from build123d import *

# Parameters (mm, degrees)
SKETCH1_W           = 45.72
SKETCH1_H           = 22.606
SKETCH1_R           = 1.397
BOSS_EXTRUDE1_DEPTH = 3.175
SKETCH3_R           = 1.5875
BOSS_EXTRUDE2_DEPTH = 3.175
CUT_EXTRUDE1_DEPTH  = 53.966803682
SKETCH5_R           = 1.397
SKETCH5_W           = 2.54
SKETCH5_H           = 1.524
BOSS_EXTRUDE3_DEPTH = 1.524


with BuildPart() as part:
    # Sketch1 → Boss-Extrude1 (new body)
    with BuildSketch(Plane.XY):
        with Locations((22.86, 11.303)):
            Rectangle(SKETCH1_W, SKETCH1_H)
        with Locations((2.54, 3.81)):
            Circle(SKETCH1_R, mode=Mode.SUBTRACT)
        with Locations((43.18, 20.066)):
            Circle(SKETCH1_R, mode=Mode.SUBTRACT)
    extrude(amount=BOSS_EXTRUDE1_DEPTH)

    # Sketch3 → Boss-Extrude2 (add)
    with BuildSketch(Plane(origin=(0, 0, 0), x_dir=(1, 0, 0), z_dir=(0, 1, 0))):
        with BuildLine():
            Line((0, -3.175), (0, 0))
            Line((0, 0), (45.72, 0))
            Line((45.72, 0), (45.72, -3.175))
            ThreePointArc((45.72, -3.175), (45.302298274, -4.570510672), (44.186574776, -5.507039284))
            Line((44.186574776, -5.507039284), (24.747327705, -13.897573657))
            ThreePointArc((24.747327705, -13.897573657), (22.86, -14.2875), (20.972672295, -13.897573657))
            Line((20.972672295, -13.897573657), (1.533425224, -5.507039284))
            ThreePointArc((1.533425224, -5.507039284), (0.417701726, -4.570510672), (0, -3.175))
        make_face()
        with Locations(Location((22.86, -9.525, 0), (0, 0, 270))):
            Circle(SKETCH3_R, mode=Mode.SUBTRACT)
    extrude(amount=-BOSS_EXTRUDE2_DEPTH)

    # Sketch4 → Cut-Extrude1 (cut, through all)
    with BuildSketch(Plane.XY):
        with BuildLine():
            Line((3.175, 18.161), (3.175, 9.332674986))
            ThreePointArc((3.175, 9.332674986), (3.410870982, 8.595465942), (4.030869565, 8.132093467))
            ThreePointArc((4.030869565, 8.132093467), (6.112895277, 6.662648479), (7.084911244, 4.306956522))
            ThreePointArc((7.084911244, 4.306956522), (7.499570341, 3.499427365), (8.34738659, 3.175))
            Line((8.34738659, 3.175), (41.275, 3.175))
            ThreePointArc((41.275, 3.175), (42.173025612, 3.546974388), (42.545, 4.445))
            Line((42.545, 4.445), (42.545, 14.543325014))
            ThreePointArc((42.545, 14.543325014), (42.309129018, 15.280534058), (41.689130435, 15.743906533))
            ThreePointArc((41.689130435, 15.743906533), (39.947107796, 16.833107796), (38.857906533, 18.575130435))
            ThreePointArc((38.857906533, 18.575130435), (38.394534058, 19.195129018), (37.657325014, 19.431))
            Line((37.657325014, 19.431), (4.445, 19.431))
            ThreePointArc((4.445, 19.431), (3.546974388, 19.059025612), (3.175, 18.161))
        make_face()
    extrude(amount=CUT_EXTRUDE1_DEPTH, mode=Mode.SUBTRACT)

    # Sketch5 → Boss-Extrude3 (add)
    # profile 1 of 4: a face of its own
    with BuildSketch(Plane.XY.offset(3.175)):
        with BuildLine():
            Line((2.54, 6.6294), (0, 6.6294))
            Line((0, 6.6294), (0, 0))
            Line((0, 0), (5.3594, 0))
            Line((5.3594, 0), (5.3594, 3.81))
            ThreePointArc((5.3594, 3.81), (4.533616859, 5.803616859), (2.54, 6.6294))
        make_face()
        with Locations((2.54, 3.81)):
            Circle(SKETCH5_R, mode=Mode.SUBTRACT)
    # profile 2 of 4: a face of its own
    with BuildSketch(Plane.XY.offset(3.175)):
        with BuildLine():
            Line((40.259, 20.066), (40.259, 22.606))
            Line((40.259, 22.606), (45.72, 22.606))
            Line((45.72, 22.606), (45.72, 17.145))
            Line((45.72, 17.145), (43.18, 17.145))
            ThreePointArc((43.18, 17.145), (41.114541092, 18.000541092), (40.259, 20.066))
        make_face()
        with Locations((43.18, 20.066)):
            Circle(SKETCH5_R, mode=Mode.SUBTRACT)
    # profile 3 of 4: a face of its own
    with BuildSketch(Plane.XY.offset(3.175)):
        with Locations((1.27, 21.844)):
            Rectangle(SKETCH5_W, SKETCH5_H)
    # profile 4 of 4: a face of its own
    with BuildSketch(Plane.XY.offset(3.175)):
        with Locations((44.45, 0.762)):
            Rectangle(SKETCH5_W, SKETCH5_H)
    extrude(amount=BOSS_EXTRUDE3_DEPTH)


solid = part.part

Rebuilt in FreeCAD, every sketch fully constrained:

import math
import FreeCAD as App
import Part
import Sketcher

V = App.Vector
Q = App.Units.Quantity


def add_polygon(sketch, points):
    """Adds a closed chain of lines whose ends are joined by coincident constraints."""
    first, n = sketch.GeometryCount, len(points)
    for a, b in zip(points, points[1:] + points[:1]):
        sketch.addGeometry(Part.LineSegment(App.Vector(*a, 0), App.Vector(*b, 0)), False)
    for i in range(n):
        sketch.addConstraint(Sketcher.Constraint("Coincident", first + i, 2, first + (i + 1) % n, 1))

doc = App.newDocument("Part")
body = doc.addObject("PartDesign::Body", "Body")

sketch1 = body.newObject("Sketcher::SketchObject", "Sketch")
sketch1.AttachmentSupport = (doc.getObject("XY_Plane"), [""])
sketch1.MapMode = "FlatFace"
add_polygon(sketch1, [(0, 22.6), (0, 0), (45.7, 0), (45.7, 22.6)])
sketch1.addGeometry(Part.Circle(V(2.5, 3.8, 0), V(0, 0, 1), 1.4), False)
sketch1.addGeometry(Part.Circle(V(43.2, 20.1, 0), V(0, 0, 1), 1.4), False)
sketch1.addConstraint(Sketcher.Constraint("Vertical", 0))
sketch1.addConstraint(Sketcher.Constraint("Horizontal", 1))
sketch1.addConstraint(Sketcher.Constraint("Vertical", 2))
sketch1.addConstraint(Sketcher.Constraint("Horizontal", 3))
sketch1.addConstraint(Sketcher.Constraint("Coincident", 0, 2, -1, 1))
sketch1.addConstraint(Sketcher.Constraint("Equal", 4, 5))
sketch1.addConstraint(Sketcher.Constraint("Diameter", 4, Q("0.11 in")))
sketch1.addConstraint(Sketcher.Constraint("DistanceX", 1, 1, 1, 2, Q("1.8 in")))
sketch1.addConstraint(Sketcher.Constraint("DistanceY", 0, 2, 0, 1, Q("0.89 in")))
sketch1.addConstraint(Sketcher.Constraint("DistanceX", -1, 1, 4, 3, Q("0.1 in")))
sketch1.addConstraint(Sketcher.Constraint("DistanceX", -1, 1, 5, 3, Q("1.7 in")))
sketch1.addConstraint(Sketcher.Constraint("DistanceY", 5, 3, 2, 2, Q("0.1 in")))
sketch1.addConstraint(Sketcher.Constraint("DistanceY", -1, 1, 4, 3, Q("0.15 in")))
pad1 = body.newObject("PartDesign::Pad", "Pad")
pad1.Profile = sketch1
pad1.Length = Q("0.125 in")

sketch2 = body.newObject("Sketcher::SketchObject", "Sketch001")
sketch2.AttachmentSupport = (doc.getObject("XZ_Plane"), [""])
sketch2.MapMode = "FlatFace"
sketch2.addGeometry(Part.LineSegment(V(0, 0, 0), V(0, 3.2, 0)), False)
sketch2.addGeometry(Part.ArcOfCircle(Part.Circle(V(2.5, 3.2, 0), V(0, 0, 1), 2.5), math.radians(113), math.radians(180)), False)
sketch2.addGeometry(Part.LineSegment(V(1.5, 5.5, 0), V(21, 13.9, 0)), False)
sketch2.addGeometry(Part.ArcOfCircle(Part.Circle(V(22.9, 9.5, 0), V(0, 0, 1), 4.8), math.radians(67), math.radians(113)), False)
sketch2.addGeometry(Part.LineSegment(V(24.7, 13.9, 0), V(44.2, 5.5, 0)), False)
sketch2.addGeometry(Part.ArcOfCircle(Part.Circle(V(43.2, 3.2, 0), V(0, 0, 1), 2.5), math.radians(0), math.radians(67)), False)
sketch2.addGeometry(Part.LineSegment(V(45.7, 3.2, 0), V(45.7, 0, 0)), False)
sketch2.addGeometry(Part.LineSegment(V(45.7, 0, 0), V(0, 0, 0)), False)
sketch2.addGeometry(Part.Circle(V(22.9, 9.5, 0), V(0, 0, 1), 1.6), False)
sketch2.addConstraint(Sketcher.Constraint("Tangent", 0, 2, 1, 2))
sketch2.addConstraint(Sketcher.Constraint("Tangent", 1, 1, 2, 1))
sketch2.addConstraint(Sketcher.Constraint("Tangent", 2, 2, 3, 2))
sketch2.addConstraint(Sketcher.Constraint("Tangent", 3, 1, 4, 1))
sketch2.addConstraint(Sketcher.Constraint("Tangent", 4, 2, 5, 2))
sketch2.addConstraint(Sketcher.Constraint("Tangent", 5, 1, 6, 1))
sketch2.addConstraint(Sketcher.Constraint("Coincident", 6, 2, 7, 1))
sketch2.addConstraint(Sketcher.Constraint("Coincident", 7, 2, 0, 1))
sketch2.addConstraint(Sketcher.Constraint("Vertical", 0))
sketch2.addConstraint(Sketcher.Constraint("Vertical", 6))
sketch2.addConstraint(Sketcher.Constraint("Horizontal", 7))
sketch2.addConstraint(Sketcher.Constraint("Coincident", 7, 2, -1, 1))
sketch2.addConstraint(Sketcher.Constraint("Coincident", 8, 3, 3, 3))
sketch2.addConstraint(Sketcher.Constraint("Equal", 1, 5))
sketch2.addConstraint(Sketcher.Constraint("Horizontal", 1, 3, 5, 3))
sketch2.addConstraint(Sketcher.Constraint("Horizontal", 2, 2, 3, 1))
sketch2.addConstraint(Sketcher.Constraint("Radius", 1, Q("0.1 in")))
sketch2.addConstraint(Sketcher.Constraint("Diameter", 8, Q("0.125 in")))
sketch2.addConstraint(Sketcher.Constraint("DistanceX", 7, 2, 7, 1, Q("1.8 in")))
sketch2.addConstraint(Sketcher.Constraint("Radius", 3, Q("0.1875 in")))
sketch2.addConstraint(Sketcher.Constraint("DistanceY", 0, 1, 0, 2, Q("0.125 in")))
sketch2.addConstraint(Sketcher.Constraint("DistanceY", 1, 3, 3, 3, Q("0.25 in")))
pad2 = body.newObject("PartDesign::Pad", "Pad001")
pad2.Profile = sketch2
pad2.Length = Q("0.125 in")

sketch3 = body.newObject("Sketcher::SketchObject", "Sketch002")
sketch3.AttachmentSupport = (doc.getObject("XY_Plane"), [""])
sketch3.MapMode = "FlatFace"
sketch3.addGeometry(Part.LineSegment(V(3.2, 18.2, 0), V(3.2, 9.3, 0)), False)
sketch3.addGeometry(Part.ArcOfCircle(Part.Circle(V(4.4, 9.3, 0), V(0, 0, 1), 1.3), math.radians(180), math.radians(251)), False)
sketch3.addGeometry(Part.ArcOfCircle(Part.Circle(V(2.5, 3.8, 0), V(0, 0, 1), 4.6), math.radians(6), math.radians(71)), False)
sketch3.addGeometry(Part.ArcOfCircle(Part.Circle(V(8.3, 4.4, 0), V(0, 0, 1), 1.3), math.radians(-174), math.radians(-90)), False)
sketch3.addGeometry(Part.LineSegment(V(8.3, 3.2, 0), V(41.3, 3.2, 0)), False)
sketch3.addGeometry(Part.ArcOfCircle(Part.Circle(V(41.3, 4.4, 0), V(0, 0, 1), 1.3), math.radians(-90), math.radians(0)), False)
sketch3.addGeometry(Part.LineSegment(V(42.5, 4.4, 0), V(42.5, 14.5, 0)), False)
sketch3.addGeometry(Part.ArcOfCircle(Part.Circle(V(41.3, 14.5, 0), V(0, 0, 1), 1.3), math.radians(0), math.radians(71)), False)
sketch3.addGeometry(Part.ArcOfCircle(Part.Circle(V(43.2, 20.1, 0), V(0, 0, 1), 4.6), math.radians(-161), math.radians(-109)), False)
sketch3.addGeometry(Part.ArcOfCircle(Part.Circle(V(37.7, 18.2, 0), V(0, 0, 1), 1.3), math.radians(19), math.radians(90)), False)
sketch3.addGeometry(Part.LineSegment(V(37.7, 19.4, 0), V(4.4, 19.4, 0)), False)
sketch3.addGeometry(Part.ArcOfCircle(Part.Circle(V(4.4, 18.2, 0), V(0, 0, 1), 1.3), math.radians(90), math.radians(180)), False)
sketch3.addConstraint(Sketcher.Constraint("Tangent", 0, 2, 1, 1))
sketch3.addConstraint(Sketcher.Constraint("Tangent", 1, 2, 2, 2))
sketch3.addConstraint(Sketcher.Constraint("Tangent", 2, 1, 3, 1))
sketch3.addConstraint(Sketcher.Constraint("Tangent", 3, 2, 4, 1))
sketch3.addConstraint(Sketcher.Constraint("Tangent", 4, 2, 5, 1))
sketch3.addConstraint(Sketcher.Constraint("Tangent", 5, 2, 6, 1))
sketch3.addConstraint(Sketcher.Constraint("Tangent", 6, 2, 7, 1))
sketch3.addConstraint(Sketcher.Constraint("Tangent", 7, 2, 8, 2))
sketch3.addConstraint(Sketcher.Constraint("Tangent", 8, 1, 9, 1))
sketch3.addConstraint(Sketcher.Constraint("Tangent", 9, 2, 10, 1))
sketch3.addConstraint(Sketcher.Constraint("Tangent", 10, 2, 11, 1))
sketch3.addConstraint(Sketcher.Constraint("Tangent", 11, 2, 0, 1))
sketch3.addConstraint(Sketcher.Constraint("Vertical", 0))
sketch3.addConstraint(Sketcher.Constraint("Horizontal", 4))
sketch3.addConstraint(Sketcher.Constraint("Vertical", 6))
sketch3.addConstraint(Sketcher.Constraint("Horizontal", 10))
sketch3.addConstraint(Sketcher.Constraint("Equal", 1, 3))
sketch3.addConstraint(Sketcher.Constraint("Equal", 3, 5))
sketch3.addConstraint(Sketcher.Constraint("Equal", 5, 7))
sketch3.addConstraint(Sketcher.Constraint("Equal", 2, 8))
sketch3.addConstraint(Sketcher.Constraint("Equal", 7, 9))
sketch3.addConstraint(Sketcher.Constraint("Equal", 9, 11))
sketch3.addConstraint(Sketcher.Constraint("Radius", 1, Q("0.05 in")))
sketch3.addConstraint(Sketcher.Constraint("Radius", 2, Q("0.18 in")))
sketch3.addConstraint(Sketcher.Constraint("DistanceX", -1, 1, 2, 3, Q("0.1 in")))
sketch3.addConstraint(Sketcher.Constraint("DistanceX", -1, 1, 8, 3, Q("1.7 in")))
sketch3.addConstraint(Sketcher.Constraint("DistanceY", -1, 1, 2, 3, Q("0.15 in")))
sketch3.addConstraint(Sketcher.Constraint("DistanceY", -1, 1, 8, 3, Q("0.79 in")))
sketch3.addConstraint(Sketcher.Constraint("DistanceX", 1, 3, 5, 3, Q("1.45 in")))
sketch3.addConstraint(Sketcher.Constraint("DistanceY", 5, 3, 9, 3, Q("0.54 in")))
sketch3.addConstraint(Sketcher.Constraint("DistanceX", -1, 1, 1, 3, Q("0.175 in")))
sketch3.addConstraint(Sketcher.Constraint("DistanceY", -1, 1, 3, 3, Q("0.175 in")))
pocket1 = body.newObject("PartDesign::Pocket", "Pocket")
pocket1.Profile = sketch3
pocket1.Type = "ThroughAll"
pocket1.Reversed = True

sketch4 = body.newObject("Sketcher::SketchObject", "Sketch003")
sketch4.AttachmentSupport = (doc.getObject("XY_Plane"), [""])
sketch4.MapMode = "FlatFace"
sketch4.AttachmentOffset = App.Placement(V(0, 0, 0.125 * 25.4), App.Rotation())
sketch4.addGeometry(Part.LineSegment(V(2.5, 6.6, 0), V(0, 6.6, 0)), False)
sketch4.addGeometry(Part.LineSegment(V(0, 6.6, 0), V(0, 0, 0)), False)
sketch4.addGeometry(Part.LineSegment(V(0, 0, 0), V(5.4, 0, 0)), False)
sketch4.addGeometry(Part.LineSegment(V(5.4, 0, 0), V(5.4, 3.8, 0)), False)
sketch4.addGeometry(Part.ArcOfCircle(Part.Circle(V(2.5, 3.8, 0), V(0, 0, 1), 2.8), math.radians(0), math.radians(90)), False)
sketch4.addGeometry(Part.Circle(V(2.5, 3.8, 0), V(0, 0, 1), 1.4), False)
sketch4.addGeometry(Part.LineSegment(V(40.3, 22.6, 0), V(40.3, 20.1, 0)), False)
sketch4.addGeometry(Part.ArcOfCircle(Part.Circle(V(43.2, 20.1, 0), V(0, 0, 1), 2.9), math.radians(180), math.radians(270)), False)
sketch4.addGeometry(Part.LineSegment(V(43.2, 17.1, 0), V(45.7, 17.1, 0)), False)
sketch4.addGeometry(Part.LineSegment(V(45.7, 17.1, 0), V(45.7, 22.6, 0)), False)
sketch4.addGeometry(Part.LineSegment(V(45.7, 22.6, 0), V(40.3, 22.6, 0)), False)
sketch4.addGeometry(Part.Circle(V(43.2, 20.1, 0), V(0, 0, 1), 1.4), False)
add_polygon(sketch4, [(0, 22.6), (0, 21.1), (2.5, 21.1), (2.5, 22.6)])
add_polygon(sketch4, [(43.2, 1.5), (43.2, 0), (45.7, 0), (45.7, 1.5)])
sketch4.addConstraint(Sketcher.Constraint("Coincident", 0, 2, 1, 1))
sketch4.addConstraint(Sketcher.Constraint("Coincident", 1, 2, 2, 1))
sketch4.addConstraint(Sketcher.Constraint("Coincident", 2, 2, 3, 1))
sketch4.addConstraint(Sketcher.Constraint("Tangent", 3, 2, 4, 1))
sketch4.addConstraint(Sketcher.Constraint("Tangent", 4, 2, 0, 1))
sketch4.addConstraint(Sketcher.Constraint("Tangent", 6, 2, 7, 1))
sketch4.addConstraint(Sketcher.Constraint("Tangent", 7, 2, 8, 1))
sketch4.addConstraint(Sketcher.Constraint("Coincident", 8, 2, 9, 1))
sketch4.addConstraint(Sketcher.Constraint("Coincident", 9, 2, 10, 1))
sketch4.addConstraint(Sketcher.Constraint("Coincident", 10, 2, 6, 1))
sketch4.addConstraint(Sketcher.Constraint("Horizontal", 0))
sketch4.addConstraint(Sketcher.Constraint("Vertical", 1))
sketch4.addConstraint(Sketcher.Constraint("Horizontal", 2))
sketch4.addConstraint(Sketcher.Constraint("Vertical", 3))
sketch4.addConstraint(Sketcher.Constraint("Vertical", 6))
sketch4.addConstraint(Sketcher.Constraint("Horizontal", 8))
sketch4.addConstraint(Sketcher.Constraint("Vertical", 9))
sketch4.addConstraint(Sketcher.Constraint("Horizontal", 10))
sketch4.addConstraint(Sketcher.Constraint("Vertical", 12))
sketch4.addConstraint(Sketcher.Constraint("Horizontal", 13))
sketch4.addConstraint(Sketcher.Constraint("Vertical", 14))
sketch4.addConstraint(Sketcher.Constraint("Horizontal", 15))
sketch4.addConstraint(Sketcher.Constraint("Vertical", 16))
sketch4.addConstraint(Sketcher.Constraint("Horizontal", 17))
sketch4.addConstraint(Sketcher.Constraint("Vertical", 18))
sketch4.addConstraint(Sketcher.Constraint("Horizontal", 19))
sketch4.addConstraint(Sketcher.Constraint("Coincident", 1, 2, -1, 1))
sketch4.addConstraint(Sketcher.Constraint("Coincident", 5, 3, 4, 3))
sketch4.addConstraint(Sketcher.Constraint("Coincident", 11, 3, 7, 3))
sketch4.addConstraint(Sketcher.Constraint("Equal", 5, 11))
sketch4.addConstraint(Sketcher.Constraint("PointOnObject", 12, 2, -2))
sketch4.addConstraint(Sketcher.Constraint("PointOnObject", 16, 2, -1))
sketch4.addConstraint(Sketcher.Constraint("Horizontal", 10, 2, 14, 2))
sketch4.addConstraint(Sketcher.Constraint("Vertical", 4, 2, 13, 2))
sketch4.addConstraint(Sketcher.Constraint("Vertical", 7, 2, 16, 2))
sketch4.addConstraint(Sketcher.Constraint("Vertical", 9, 2, 17, 2))
sketch4.addConstraint(Sketcher.Constraint("Equal", 0, 8))
sketch4.addConstraint(Sketcher.Constraint("Equal", 19, 6))
sketch4.addConstraint(Sketcher.Constraint("Equal", 14, 16))
sketch4.addConstraint(Sketcher.Constraint("Diameter", 5, Q("0.11 in")))
sketch4.addConstraint(Sketcher.Constraint("DistanceX", 0, 2, 0, 1, Q("0.1 in")))
sketch4.addConstraint(Sketcher.Constraint("Radius", 4, Q("0.111 in")))
sketch4.addConstraint(Sketcher.Constraint("Radius", 7, Q("0.115 in")))
sketch4.addConstraint(Sketcher.Constraint("DistanceY", 3, 1, 3, 2, Q("0.15 in")))
sketch4.addConstraint(Sketcher.Constraint("DistanceY", 12, 2, 12, 1, Q("0.06 in")))
sketch4.addConstraint(Sketcher.Constraint("DistanceX", -1, 1, 7, 3, Q("1.7 in")))
sketch4.addConstraint(Sketcher.Constraint("DistanceY", -1, 1, 7, 3, Q("0.79 in")))
pad3 = body.newObject("PartDesign::Pad", "Pad002")
pad3.Profile = sketch4
pad3.Length = Q("0.06 in")

doc.recompute()
